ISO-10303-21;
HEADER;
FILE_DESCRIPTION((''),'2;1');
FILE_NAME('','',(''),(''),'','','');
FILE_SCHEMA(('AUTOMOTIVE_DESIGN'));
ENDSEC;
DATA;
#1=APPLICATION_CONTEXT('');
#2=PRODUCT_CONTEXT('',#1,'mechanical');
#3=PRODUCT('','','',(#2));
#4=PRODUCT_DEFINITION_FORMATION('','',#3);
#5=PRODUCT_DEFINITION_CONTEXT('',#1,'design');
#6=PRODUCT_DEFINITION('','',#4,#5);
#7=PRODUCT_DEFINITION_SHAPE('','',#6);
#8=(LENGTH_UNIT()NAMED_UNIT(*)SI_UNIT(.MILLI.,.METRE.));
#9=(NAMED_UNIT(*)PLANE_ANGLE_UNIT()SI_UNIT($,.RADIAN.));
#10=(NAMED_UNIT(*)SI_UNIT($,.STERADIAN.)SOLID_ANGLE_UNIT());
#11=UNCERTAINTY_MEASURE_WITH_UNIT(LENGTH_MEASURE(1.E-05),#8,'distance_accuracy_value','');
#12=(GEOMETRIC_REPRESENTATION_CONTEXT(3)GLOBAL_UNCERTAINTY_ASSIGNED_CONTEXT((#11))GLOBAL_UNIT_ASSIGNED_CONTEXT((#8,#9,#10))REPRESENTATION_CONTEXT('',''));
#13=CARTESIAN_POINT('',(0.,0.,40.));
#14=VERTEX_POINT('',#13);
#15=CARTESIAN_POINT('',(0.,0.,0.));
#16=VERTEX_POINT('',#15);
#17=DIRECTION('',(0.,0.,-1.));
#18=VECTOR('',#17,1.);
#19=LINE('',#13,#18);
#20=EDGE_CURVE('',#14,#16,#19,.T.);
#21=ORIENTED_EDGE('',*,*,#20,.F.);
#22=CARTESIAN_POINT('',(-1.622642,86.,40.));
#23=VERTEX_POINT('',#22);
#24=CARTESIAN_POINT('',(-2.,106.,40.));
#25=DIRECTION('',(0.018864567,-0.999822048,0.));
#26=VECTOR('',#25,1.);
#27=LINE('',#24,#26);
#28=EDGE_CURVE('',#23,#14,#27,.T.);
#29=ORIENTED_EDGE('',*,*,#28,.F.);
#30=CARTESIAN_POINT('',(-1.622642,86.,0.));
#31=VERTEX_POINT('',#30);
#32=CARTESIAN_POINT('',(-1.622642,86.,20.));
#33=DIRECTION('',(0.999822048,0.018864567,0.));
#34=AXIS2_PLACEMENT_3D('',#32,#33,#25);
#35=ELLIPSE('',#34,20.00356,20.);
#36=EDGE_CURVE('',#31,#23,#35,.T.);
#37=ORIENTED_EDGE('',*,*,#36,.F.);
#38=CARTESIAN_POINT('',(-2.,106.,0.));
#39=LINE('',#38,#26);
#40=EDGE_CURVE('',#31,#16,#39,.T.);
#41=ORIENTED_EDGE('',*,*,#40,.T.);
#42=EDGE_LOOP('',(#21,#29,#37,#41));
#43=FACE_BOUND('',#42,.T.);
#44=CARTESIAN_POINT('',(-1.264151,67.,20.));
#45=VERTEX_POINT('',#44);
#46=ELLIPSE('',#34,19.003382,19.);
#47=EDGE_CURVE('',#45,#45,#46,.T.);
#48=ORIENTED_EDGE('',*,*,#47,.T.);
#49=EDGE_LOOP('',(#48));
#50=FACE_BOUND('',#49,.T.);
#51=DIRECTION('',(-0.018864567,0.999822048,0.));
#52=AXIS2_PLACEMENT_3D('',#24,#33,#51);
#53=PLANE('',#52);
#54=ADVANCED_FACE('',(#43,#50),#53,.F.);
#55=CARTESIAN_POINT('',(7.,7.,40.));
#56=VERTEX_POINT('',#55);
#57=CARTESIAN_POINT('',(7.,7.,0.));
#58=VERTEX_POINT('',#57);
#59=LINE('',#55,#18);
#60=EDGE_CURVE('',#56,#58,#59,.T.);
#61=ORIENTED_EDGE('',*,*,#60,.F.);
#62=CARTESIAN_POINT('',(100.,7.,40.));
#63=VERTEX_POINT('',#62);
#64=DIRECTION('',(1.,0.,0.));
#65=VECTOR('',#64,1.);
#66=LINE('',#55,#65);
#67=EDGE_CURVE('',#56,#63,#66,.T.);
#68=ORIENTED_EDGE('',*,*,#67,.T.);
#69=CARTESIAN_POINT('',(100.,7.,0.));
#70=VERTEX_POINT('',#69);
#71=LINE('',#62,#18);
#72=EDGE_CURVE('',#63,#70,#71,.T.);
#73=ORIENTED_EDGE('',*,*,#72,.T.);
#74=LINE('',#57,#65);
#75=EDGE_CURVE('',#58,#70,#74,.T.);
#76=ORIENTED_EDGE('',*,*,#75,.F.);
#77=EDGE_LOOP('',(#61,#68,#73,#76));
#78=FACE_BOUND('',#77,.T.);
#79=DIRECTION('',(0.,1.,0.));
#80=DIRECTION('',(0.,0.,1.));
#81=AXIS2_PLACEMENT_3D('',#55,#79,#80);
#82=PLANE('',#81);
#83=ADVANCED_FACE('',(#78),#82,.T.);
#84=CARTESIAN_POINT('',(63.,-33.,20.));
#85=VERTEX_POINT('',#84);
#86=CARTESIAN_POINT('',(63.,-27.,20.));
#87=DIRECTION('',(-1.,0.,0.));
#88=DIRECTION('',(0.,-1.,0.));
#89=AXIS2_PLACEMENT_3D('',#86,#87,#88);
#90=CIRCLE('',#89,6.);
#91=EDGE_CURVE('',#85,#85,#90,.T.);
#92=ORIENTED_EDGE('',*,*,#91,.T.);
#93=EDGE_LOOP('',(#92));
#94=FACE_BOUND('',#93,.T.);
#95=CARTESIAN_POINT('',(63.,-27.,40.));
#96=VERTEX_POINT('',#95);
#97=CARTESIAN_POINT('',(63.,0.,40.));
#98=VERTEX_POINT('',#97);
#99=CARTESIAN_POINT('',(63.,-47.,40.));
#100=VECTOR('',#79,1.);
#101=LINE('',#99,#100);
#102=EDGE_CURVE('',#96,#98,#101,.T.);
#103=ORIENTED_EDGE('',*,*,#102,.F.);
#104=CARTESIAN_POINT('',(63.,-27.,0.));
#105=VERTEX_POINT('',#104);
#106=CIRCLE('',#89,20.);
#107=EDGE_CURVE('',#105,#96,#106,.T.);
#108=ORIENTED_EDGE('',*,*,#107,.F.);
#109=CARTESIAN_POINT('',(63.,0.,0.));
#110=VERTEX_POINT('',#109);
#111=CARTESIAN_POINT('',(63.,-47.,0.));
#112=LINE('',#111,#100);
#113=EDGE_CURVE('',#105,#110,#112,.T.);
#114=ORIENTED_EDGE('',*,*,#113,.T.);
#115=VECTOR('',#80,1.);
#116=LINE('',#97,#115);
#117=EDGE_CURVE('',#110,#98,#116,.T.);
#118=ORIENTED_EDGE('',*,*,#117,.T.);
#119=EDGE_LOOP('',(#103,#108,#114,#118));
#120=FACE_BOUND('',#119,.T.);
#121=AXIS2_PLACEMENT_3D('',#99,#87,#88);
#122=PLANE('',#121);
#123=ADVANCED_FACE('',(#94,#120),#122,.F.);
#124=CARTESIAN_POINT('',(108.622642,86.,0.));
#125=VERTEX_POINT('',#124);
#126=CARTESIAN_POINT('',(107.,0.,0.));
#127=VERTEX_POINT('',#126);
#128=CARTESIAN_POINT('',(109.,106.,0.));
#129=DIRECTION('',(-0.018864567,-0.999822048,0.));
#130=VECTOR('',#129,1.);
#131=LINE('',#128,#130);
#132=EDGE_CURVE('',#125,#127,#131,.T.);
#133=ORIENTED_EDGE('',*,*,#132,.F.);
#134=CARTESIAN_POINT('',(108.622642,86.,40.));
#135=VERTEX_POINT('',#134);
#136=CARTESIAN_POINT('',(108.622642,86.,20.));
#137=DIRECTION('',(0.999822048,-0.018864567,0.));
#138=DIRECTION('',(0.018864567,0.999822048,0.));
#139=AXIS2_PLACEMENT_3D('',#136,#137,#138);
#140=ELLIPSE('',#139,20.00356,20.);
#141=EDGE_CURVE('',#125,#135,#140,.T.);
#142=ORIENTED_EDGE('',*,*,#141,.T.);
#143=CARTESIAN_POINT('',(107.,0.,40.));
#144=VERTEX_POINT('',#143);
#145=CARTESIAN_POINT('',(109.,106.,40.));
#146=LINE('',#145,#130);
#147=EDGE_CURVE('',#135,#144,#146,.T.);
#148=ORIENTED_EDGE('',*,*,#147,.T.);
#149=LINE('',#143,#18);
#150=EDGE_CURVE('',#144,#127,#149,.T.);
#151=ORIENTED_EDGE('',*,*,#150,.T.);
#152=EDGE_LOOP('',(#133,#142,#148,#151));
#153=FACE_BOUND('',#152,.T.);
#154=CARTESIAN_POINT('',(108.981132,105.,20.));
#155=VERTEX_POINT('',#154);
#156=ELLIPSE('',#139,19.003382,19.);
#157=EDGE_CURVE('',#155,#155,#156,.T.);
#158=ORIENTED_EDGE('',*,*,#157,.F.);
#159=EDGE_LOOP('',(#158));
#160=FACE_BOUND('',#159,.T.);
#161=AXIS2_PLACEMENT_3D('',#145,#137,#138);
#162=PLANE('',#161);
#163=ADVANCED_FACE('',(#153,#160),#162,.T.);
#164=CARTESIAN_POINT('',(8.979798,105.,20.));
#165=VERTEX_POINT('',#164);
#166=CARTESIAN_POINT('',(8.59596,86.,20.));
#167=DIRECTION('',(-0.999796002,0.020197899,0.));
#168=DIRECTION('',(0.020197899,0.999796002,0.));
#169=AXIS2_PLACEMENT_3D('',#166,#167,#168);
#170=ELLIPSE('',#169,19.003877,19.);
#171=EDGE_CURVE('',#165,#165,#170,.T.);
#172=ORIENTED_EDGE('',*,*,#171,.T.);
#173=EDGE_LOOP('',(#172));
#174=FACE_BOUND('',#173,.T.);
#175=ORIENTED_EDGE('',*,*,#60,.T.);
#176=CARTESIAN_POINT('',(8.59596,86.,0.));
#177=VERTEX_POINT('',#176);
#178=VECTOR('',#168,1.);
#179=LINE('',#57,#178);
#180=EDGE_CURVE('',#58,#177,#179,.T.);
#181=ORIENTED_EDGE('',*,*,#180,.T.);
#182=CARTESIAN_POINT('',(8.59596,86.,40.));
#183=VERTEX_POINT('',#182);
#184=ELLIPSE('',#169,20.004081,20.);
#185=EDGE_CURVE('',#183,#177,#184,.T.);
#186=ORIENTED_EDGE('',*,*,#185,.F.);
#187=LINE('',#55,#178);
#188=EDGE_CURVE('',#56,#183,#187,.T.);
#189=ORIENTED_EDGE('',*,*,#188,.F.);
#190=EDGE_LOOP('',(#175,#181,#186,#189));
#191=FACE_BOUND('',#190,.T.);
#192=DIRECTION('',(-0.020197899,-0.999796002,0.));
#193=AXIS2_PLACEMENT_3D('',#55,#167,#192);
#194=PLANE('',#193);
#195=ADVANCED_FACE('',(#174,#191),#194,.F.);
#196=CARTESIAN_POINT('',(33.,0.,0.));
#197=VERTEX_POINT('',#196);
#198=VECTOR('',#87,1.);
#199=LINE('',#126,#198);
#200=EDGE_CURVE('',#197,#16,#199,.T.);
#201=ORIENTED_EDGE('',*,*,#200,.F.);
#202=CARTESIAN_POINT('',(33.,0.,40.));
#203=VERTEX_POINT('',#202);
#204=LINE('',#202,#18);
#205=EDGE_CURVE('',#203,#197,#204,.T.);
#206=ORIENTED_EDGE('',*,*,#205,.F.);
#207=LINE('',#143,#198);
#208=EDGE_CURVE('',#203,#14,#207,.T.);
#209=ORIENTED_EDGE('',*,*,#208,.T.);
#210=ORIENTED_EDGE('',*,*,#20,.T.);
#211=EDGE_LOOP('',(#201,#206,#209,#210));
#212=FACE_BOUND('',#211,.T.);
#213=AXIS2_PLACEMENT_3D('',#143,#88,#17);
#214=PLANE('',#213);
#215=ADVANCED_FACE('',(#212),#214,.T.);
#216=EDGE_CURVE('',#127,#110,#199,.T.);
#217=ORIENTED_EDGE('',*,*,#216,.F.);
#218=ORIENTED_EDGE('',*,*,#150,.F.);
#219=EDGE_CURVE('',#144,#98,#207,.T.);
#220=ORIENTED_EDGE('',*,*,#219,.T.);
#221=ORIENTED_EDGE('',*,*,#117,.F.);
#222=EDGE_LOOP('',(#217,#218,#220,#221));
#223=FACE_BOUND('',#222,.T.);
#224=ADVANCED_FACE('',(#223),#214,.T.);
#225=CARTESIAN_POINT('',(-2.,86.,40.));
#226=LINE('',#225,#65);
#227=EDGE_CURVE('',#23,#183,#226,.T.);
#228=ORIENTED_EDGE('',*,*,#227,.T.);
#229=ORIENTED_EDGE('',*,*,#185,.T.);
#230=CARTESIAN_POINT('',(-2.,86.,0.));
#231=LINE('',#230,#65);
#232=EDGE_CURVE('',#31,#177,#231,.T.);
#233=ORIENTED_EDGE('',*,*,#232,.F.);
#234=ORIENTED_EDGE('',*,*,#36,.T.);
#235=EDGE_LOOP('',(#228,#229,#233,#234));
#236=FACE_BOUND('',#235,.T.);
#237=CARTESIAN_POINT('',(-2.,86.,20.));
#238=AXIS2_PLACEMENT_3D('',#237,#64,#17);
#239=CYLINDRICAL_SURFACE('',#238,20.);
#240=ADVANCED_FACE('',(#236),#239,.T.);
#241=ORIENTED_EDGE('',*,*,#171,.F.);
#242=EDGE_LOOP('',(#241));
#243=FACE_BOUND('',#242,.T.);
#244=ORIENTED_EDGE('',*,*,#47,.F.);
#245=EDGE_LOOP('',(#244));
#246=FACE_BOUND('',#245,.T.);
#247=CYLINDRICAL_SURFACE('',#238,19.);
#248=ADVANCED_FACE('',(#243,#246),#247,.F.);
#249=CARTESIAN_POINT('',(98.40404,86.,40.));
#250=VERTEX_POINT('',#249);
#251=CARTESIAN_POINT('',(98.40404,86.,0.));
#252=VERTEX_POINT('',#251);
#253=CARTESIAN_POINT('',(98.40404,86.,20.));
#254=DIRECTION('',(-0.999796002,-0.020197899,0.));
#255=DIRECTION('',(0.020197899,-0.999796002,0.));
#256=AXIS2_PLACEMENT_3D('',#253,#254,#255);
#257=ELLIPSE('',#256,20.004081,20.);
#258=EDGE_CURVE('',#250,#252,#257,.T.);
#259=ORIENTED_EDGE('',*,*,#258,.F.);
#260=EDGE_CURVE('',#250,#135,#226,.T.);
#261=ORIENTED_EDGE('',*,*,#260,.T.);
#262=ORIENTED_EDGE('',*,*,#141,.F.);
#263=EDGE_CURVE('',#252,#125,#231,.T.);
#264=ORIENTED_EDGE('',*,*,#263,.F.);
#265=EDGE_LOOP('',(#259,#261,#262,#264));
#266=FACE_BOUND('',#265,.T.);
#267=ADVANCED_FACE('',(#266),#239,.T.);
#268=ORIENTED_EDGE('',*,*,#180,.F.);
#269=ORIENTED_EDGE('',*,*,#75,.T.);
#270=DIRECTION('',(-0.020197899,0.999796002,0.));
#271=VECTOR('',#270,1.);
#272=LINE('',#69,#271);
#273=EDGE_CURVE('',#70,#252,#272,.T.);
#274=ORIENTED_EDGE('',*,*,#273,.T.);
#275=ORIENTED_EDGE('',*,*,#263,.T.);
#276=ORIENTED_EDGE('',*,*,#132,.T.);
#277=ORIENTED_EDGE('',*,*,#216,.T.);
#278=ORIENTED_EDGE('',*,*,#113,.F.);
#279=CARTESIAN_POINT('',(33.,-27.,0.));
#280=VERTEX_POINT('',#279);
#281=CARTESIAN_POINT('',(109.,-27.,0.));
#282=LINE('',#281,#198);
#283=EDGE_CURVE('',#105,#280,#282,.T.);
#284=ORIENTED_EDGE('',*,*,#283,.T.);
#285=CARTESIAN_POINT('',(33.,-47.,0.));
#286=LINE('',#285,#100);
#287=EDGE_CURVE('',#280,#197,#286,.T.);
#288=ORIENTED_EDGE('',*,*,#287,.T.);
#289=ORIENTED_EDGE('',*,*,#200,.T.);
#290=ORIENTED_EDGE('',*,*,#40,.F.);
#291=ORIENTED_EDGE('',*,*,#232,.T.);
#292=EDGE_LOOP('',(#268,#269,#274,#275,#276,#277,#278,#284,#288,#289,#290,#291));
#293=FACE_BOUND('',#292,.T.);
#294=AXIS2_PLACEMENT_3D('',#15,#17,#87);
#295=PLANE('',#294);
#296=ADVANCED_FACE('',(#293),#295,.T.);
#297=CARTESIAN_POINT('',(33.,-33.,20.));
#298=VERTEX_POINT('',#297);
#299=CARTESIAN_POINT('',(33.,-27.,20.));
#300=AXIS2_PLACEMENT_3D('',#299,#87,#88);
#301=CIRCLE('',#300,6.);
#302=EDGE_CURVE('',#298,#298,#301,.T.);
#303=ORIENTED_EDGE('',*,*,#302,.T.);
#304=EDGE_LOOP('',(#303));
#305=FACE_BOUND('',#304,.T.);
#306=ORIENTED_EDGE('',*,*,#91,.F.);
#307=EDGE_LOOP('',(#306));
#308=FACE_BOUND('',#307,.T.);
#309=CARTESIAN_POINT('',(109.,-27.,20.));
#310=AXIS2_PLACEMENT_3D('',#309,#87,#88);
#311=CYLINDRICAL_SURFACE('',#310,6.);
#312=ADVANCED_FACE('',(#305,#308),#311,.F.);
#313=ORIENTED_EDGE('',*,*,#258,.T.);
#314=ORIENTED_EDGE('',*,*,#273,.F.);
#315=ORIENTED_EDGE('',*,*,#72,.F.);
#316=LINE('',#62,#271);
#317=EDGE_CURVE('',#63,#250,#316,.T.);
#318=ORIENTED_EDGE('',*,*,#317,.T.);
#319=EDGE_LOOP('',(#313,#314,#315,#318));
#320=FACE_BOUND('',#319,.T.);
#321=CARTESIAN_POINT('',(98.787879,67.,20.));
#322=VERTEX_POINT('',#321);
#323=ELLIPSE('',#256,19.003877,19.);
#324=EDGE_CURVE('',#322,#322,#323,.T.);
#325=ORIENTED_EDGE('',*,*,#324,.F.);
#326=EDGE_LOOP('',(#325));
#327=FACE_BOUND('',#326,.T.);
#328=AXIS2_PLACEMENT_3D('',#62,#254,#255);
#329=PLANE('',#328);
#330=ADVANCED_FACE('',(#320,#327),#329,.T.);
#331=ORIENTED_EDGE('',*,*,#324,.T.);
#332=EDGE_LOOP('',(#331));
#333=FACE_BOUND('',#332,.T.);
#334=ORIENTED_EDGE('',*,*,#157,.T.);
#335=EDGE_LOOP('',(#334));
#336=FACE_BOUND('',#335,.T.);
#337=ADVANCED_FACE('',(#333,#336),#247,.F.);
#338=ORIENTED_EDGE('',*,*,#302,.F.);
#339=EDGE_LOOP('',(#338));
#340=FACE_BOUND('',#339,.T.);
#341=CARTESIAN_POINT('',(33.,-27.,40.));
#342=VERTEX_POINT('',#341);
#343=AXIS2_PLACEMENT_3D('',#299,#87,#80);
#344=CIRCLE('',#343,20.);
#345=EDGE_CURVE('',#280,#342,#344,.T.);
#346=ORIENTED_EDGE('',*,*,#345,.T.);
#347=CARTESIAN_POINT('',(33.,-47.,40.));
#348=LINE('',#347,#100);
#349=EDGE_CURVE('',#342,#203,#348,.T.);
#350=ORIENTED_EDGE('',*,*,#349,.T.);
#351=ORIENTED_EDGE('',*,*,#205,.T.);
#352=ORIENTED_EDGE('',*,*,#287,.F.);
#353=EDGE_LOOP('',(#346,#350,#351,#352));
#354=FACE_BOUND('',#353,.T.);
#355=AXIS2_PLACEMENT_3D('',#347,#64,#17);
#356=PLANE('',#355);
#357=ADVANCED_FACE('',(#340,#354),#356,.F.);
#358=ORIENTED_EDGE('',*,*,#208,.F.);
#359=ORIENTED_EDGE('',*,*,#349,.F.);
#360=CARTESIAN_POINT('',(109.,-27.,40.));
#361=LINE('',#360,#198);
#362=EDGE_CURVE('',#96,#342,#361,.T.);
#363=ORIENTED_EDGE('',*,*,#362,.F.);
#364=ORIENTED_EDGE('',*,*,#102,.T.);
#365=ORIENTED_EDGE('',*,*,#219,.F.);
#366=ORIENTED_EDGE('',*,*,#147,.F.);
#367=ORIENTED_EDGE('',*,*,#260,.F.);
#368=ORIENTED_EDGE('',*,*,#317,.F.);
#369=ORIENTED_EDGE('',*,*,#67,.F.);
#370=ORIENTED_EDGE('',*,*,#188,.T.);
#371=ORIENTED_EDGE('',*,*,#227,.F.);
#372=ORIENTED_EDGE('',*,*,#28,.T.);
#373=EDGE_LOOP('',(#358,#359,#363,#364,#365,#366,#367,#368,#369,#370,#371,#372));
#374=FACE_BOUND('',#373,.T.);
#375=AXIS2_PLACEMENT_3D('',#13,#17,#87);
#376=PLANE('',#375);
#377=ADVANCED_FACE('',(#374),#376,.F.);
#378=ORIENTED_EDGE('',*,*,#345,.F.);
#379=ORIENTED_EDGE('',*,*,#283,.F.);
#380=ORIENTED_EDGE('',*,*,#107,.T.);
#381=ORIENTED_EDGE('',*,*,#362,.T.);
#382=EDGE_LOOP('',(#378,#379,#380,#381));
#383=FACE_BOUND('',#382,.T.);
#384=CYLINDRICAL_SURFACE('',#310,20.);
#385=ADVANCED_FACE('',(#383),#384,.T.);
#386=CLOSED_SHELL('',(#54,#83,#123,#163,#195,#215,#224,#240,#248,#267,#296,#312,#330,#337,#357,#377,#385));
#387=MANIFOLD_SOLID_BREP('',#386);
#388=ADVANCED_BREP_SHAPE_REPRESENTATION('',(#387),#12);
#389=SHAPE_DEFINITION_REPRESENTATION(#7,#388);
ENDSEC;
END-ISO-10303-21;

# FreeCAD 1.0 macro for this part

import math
import FreeCAD as App
import Part
import Sketcher
Q = App.Units.Quantity


def add_polygon(sketch, points):
    """Adds a closed chain of lines whose ends are joined by coincident constraints."""
    first, n = sketch.GeometryCount, len(points)
    for a, b in zip(points, points[1:] + points[:1]):
        sketch.addGeometry(Part.LineSegment(App.Vector(*a, 0), App.Vector(*b, 0)), False)
    for i in range(n):
        sketch.addConstraint(Sketcher.Constraint("Coincident", first + i, 2, first + (i + 1) % n, 1))

doc = App.newDocument("Part")
body = doc.addObject("PartDesign::Body", "Body")

# Sketch on XY plane
sketch1 = doc.addObject("Sketcher::SketchObject", "Sketch")
body.addObject(sketch1)
sketch1.AttachmentSupport = (doc.XY_Plane, [""])
sketch1.MapMode = "FlatFace"
add_polygon(sketch1, [(100, 7), (7, 7), (9, 106), (-2, 106), (0, 0), (107, 0), (109, 106), (98, 106)])  # lines 0-7
sketch1.addConstraint(Sketcher.Constraint("Horizontal", 0))
sketch1.addConstraint(Sketcher.Constraint("Horizontal", 2))
sketch1.addConstraint(Sketcher.Constraint("Horizontal", 4))
sketch1.addConstraint(Sketcher.Constraint("Horizontal", 6))
sketch1.addConstraint(Sketcher.Constraint("Coincident", 3, 2, -1, 1))
sketch1.addConstraint(Sketcher.Constraint("Horizontal", 2, 2, 5, 2))
sketch1.addConstraint(Sketcher.Constraint("Equal", 2, 6))
sketch1.addConstraint(Sketcher.Constraint("Equal", 3, 5))
sketch1.addConstraint(Sketcher.Constraint("Equal", 1, 7))
sketch1.addConstraint(Sketcher.Constraint("DistanceX", 0, 2, 0, 1, Q("93 mm")))
sketch1.addConstraint(Sketcher.Constraint("DistanceX", 2, 2, 2, 1, Q("11 mm")))
sketch1.addConstraint(Sketcher.Constraint("DistanceX", 4, 1, 4, 2, Q("107 mm")))
sketch1.addConstraint(Sketcher.Constraint("DistanceY", -1, 1, 0, 2, Q("7 mm")))
sketch1.addConstraint(Sketcher.Constraint("DistanceX", -1, 1, 1, 2, Q("9 mm")))
sketch1.addConstraint(Sketcher.Constraint("DistanceY", -1, 1, 1, 2, Q("106 mm")))
pad1 = doc.addObject("PartDesign::Pad", "Pad")
body.addObject(pad1)
pad1.Profile = sketch1
pad1.Length = 40

# Sketch on YZ plane
sketch2 = doc.addObject("Sketcher::SketchObject", "Sketch001")
body.addObject(sketch2)
sketch2.AttachmentSupport = (doc.YZ_Plane, [""])
sketch2.MapMode = "FlatFace"
sketch2.addGeometry(Part.Circle(App.Vector(86, 20, 0), App.Vector(0, 0, 1), 19), False)
sketch2.addGeometry(Part.LineSegment(App.Vector(106, 40, 0), App.Vector(86, 40, 0)), False)
sketch2.addGeometry(Part.ArcOfCircle(Part.Circle(App.Vector(86, 20, 0), App.Vector(0, 0, 1), 20), math.radians(0), math.radians(90)), False)
sketch2.addGeometry(Part.LineSegment(App.Vector(106, 20, 0), App.Vector(106, 40, 0)), False)
sketch2.addGeometry(Part.ArcOfCircle(Part.Circle(App.Vector(86, 20, 0), App.Vector(0, 0, 1), 20), math.radians(-90), math.radians(0)), False)
sketch2.addGeometry(Part.LineSegment(App.Vector(86, 0, 0), App.Vector(106, 0, 0)), False)
sketch2.addGeometry(Part.LineSegment(App.Vector(106, 0, 0), App.Vector(106, 20, 0)), False)
sketch2.addConstraint(Sketcher.Constraint("Tangent", 1, 2, 2, 2))
sketch2.addConstraint(Sketcher.Constraint("Tangent", 2, 1, 3, 1))
sketch2.addConstraint(Sketcher.Constraint("Coincident", 3, 2, 1, 1))
sketch2.addConstraint(Sketcher.Constraint("Tangent", 4, 1, 5, 1))
sketch2.addConstraint(Sketcher.Constraint("Coincident", 5, 2, 6, 1))
sketch2.addConstraint(Sketcher.Constraint("Tangent", 6, 2, 4, 2))
sketch2.addConstraint(Sketcher.Constraint("Horizontal", 1))
sketch2.addConstraint(Sketcher.Constraint("Vertical", 3))
sketch2.addConstraint(Sketcher.Constraint("Horizontal", 5))
sketch2.addConstraint(Sketcher.Constraint("Vertical", 6))
sketch2.addConstraint(Sketcher.Constraint("Coincident", 2, 3, 0, 3))
sketch2.addConstraint(Sketcher.Constraint("Coincident", 4, 3, 0, 3))
sketch2.addConstraint(Sketcher.Constraint("Equal", 2, 4))
sketch2.addConstraint(Sketcher.Constraint("PointOnObject", 4, 1, -1))
sketch2.addConstraint(Sketcher.Constraint("Diameter", 0, Q("38 mm")))
sketch2.addConstraint(Sketcher.Constraint("Radius", 2, Q("20 mm")))
sketch2.addConstraint(Sketcher.Constraint("DistanceX", -1, 1, 0, 3, Q("86 mm")))
pocket1 = doc.addObject("PartDesign::Pocket", "Pocket")
body.addObject(pocket1)
pocket1.Profile = sketch2
pocket1.Type = "ThroughAll"
pocket1.Midplane = True

# Sketch on XZ plane
sketch3 = doc.addObject("Sketcher::SketchObject", "Sketch002")
body.addObject(sketch3)
sketch3.AttachmentSupport = (doc.XZ_Plane, [""])
sketch3.MapMode = "FlatFace"
add_polygon(sketch3, [(33, 40), (33, 0), (63, 0), (63, 40)])  # lines 0-3
sketch3.addConstraint(Sketcher.Constraint("Vertical", 0))
sketch3.addConstraint(Sketcher.Constraint("Horizontal", 1))
sketch3.addConstraint(Sketcher.Constraint("Vertical", 2))
sketch3.addConstraint(Sketcher.Constraint("Horizontal", 3))
sketch3.addConstraint(Sketcher.Constraint("PointOnObject", 0, 2, -1))
sketch3.addConstraint(Sketcher.Constraint("DistanceX", 1, 1, 1, 2, Q("30 mm")))
sketch3.addConstraint(Sketcher.Constraint("DistanceY", 0, 2, 0, 1, Q("40 mm")))
sketch3.addConstraint(Sketcher.Constraint("DistanceX", -1, 1, 0, 2, Q("33 mm")))
pad2 = doc.addObject("PartDesign::Pad", "Pad001")
body.addObject(pad2)
pad2.Profile = sketch3
pad2.Length = 47

# Sketch on YZ plane
sketch4 = doc.addObject("Sketcher::SketchObject", "Sketch003")
body.addObject(sketch4)
sketch4.AttachmentSupport = (doc.YZ_Plane, [""])
sketch4.MapMode = "FlatFace"
sketch4.AttachmentOffset = App.Placement(App.Vector(0, 0, 33), App.Rotation())
sketch4.addGeometry(Part.LineSegment(App.Vector(-47, 20, 0), App.Vector(-47, 40, 0)), False)
sketch4.addGeometry(Part.LineSegment(App.Vector(-47, 40, 0), App.Vector(-27, 40, 0)), False)
sketch4.addGeometry(Part.ArcOfCircle(Part.Circle(App.Vector(-27, 20, 0), App.Vector(0, 0, 1), 20), math.radians(90), math.radians(180)), False)
sketch4.addGeometry(Part.LineSegment(App.Vector(-47, 0, 0), App.Vector(-47, 20, 0)), False)
sketch4.addGeometry(Part.ArcOfCircle(Part.Circle(App.Vector(-27, 20, 0), App.Vector(0, 0, 1), 20), math.radians(180), math.radians(270)), False)
sketch4.addGeometry(Part.LineSegment(App.Vector(-27, 0, 0), App.Vector(-47, 0, 0)), False)
sketch4.addConstraint(Sketcher.Constraint("Coincident", 0, 2, 1, 1))
sketch4.addConstraint(Sketcher.Constraint("Tangent", 1, 2, 2, 1))
sketch4.addConstraint(Sketcher.Constraint("Tangent", 2, 2, 0, 1))
sketch4.addConstraint(Sketcher.Constraint("Tangent", 3, 2, 4, 1))
sketch4.addConstraint(Sketcher.Constraint("Tangent", 4, 2, 5, 1))
sketch4.addConstraint(Sketcher.Constraint("Coincident", 5, 2, 3, 1))
sketch4.addConstraint(Sketcher.Constraint("Vertical", 0))
sketch4.addConstraint(Sketcher.Constraint("Horizontal", 1))
sketch4.addConstraint(Sketcher.Constraint("Vertical", 3))
sketch4.addConstraint(Sketcher.Constraint("Horizontal", 5))
sketch4.addConstraint(Sketcher.Constraint("Coincident", 4, 3, 2, 3))
sketch4.addConstraint(Sketcher.Constraint("Equal", 2, 4))
sketch4.addConstraint(Sketcher.Constraint("PointOnObject", 4, 2, -1))
sketch4.addConstraint(Sketcher.Constraint("Radius", 2, Q("20 mm")))
sketch4.addConstraint(Sketcher.Constraint("DistanceX", 2, 3, -1, 1, Q("27 mm")))
pocket2 = doc.addObject("PartDesign::Pocket", "Pocket001")
body.addObject(pocket2)
pocket2.Profile = sketch4
pocket2.Type = "ThroughAll"
pocket2.Reversed = True

# Sketch on YZ plane
sketch5 = doc.addObject("Sketcher::SketchObject", "Sketch004")
body.addObject(sketch5)
sketch5.AttachmentSupport = (doc.YZ_Plane, [""])
sketch5.MapMode = "FlatFace"
sketch5.AttachmentOffset = App.Placement(App.Vector(0, 0, 33), App.Rotation())
sketch5.addGeometry(Part.Circle(App.Vector(-27, 20, 0), App.Vector(0, 0, 1), 6), False)
sketch5.addConstraint(Sketcher.Constraint("Diameter", 0, Q("12 mm")))
sketch5.addConstraint(Sketcher.Constraint("DistanceX", 0, 3, -1, 1, Q("27 mm")))
sketch5.addConstraint(Sketcher.Constraint("DistanceY", -1, 1, 0, 3, Q("20 mm")))
pocket3 = doc.addObject("PartDesign::Pocket", "Pocket002")
body.addObject(pocket3)
pocket3.Profile = sketch5
pocket3.Type = "ThroughAll"
pocket3.Reversed = True

doc.recompute()
